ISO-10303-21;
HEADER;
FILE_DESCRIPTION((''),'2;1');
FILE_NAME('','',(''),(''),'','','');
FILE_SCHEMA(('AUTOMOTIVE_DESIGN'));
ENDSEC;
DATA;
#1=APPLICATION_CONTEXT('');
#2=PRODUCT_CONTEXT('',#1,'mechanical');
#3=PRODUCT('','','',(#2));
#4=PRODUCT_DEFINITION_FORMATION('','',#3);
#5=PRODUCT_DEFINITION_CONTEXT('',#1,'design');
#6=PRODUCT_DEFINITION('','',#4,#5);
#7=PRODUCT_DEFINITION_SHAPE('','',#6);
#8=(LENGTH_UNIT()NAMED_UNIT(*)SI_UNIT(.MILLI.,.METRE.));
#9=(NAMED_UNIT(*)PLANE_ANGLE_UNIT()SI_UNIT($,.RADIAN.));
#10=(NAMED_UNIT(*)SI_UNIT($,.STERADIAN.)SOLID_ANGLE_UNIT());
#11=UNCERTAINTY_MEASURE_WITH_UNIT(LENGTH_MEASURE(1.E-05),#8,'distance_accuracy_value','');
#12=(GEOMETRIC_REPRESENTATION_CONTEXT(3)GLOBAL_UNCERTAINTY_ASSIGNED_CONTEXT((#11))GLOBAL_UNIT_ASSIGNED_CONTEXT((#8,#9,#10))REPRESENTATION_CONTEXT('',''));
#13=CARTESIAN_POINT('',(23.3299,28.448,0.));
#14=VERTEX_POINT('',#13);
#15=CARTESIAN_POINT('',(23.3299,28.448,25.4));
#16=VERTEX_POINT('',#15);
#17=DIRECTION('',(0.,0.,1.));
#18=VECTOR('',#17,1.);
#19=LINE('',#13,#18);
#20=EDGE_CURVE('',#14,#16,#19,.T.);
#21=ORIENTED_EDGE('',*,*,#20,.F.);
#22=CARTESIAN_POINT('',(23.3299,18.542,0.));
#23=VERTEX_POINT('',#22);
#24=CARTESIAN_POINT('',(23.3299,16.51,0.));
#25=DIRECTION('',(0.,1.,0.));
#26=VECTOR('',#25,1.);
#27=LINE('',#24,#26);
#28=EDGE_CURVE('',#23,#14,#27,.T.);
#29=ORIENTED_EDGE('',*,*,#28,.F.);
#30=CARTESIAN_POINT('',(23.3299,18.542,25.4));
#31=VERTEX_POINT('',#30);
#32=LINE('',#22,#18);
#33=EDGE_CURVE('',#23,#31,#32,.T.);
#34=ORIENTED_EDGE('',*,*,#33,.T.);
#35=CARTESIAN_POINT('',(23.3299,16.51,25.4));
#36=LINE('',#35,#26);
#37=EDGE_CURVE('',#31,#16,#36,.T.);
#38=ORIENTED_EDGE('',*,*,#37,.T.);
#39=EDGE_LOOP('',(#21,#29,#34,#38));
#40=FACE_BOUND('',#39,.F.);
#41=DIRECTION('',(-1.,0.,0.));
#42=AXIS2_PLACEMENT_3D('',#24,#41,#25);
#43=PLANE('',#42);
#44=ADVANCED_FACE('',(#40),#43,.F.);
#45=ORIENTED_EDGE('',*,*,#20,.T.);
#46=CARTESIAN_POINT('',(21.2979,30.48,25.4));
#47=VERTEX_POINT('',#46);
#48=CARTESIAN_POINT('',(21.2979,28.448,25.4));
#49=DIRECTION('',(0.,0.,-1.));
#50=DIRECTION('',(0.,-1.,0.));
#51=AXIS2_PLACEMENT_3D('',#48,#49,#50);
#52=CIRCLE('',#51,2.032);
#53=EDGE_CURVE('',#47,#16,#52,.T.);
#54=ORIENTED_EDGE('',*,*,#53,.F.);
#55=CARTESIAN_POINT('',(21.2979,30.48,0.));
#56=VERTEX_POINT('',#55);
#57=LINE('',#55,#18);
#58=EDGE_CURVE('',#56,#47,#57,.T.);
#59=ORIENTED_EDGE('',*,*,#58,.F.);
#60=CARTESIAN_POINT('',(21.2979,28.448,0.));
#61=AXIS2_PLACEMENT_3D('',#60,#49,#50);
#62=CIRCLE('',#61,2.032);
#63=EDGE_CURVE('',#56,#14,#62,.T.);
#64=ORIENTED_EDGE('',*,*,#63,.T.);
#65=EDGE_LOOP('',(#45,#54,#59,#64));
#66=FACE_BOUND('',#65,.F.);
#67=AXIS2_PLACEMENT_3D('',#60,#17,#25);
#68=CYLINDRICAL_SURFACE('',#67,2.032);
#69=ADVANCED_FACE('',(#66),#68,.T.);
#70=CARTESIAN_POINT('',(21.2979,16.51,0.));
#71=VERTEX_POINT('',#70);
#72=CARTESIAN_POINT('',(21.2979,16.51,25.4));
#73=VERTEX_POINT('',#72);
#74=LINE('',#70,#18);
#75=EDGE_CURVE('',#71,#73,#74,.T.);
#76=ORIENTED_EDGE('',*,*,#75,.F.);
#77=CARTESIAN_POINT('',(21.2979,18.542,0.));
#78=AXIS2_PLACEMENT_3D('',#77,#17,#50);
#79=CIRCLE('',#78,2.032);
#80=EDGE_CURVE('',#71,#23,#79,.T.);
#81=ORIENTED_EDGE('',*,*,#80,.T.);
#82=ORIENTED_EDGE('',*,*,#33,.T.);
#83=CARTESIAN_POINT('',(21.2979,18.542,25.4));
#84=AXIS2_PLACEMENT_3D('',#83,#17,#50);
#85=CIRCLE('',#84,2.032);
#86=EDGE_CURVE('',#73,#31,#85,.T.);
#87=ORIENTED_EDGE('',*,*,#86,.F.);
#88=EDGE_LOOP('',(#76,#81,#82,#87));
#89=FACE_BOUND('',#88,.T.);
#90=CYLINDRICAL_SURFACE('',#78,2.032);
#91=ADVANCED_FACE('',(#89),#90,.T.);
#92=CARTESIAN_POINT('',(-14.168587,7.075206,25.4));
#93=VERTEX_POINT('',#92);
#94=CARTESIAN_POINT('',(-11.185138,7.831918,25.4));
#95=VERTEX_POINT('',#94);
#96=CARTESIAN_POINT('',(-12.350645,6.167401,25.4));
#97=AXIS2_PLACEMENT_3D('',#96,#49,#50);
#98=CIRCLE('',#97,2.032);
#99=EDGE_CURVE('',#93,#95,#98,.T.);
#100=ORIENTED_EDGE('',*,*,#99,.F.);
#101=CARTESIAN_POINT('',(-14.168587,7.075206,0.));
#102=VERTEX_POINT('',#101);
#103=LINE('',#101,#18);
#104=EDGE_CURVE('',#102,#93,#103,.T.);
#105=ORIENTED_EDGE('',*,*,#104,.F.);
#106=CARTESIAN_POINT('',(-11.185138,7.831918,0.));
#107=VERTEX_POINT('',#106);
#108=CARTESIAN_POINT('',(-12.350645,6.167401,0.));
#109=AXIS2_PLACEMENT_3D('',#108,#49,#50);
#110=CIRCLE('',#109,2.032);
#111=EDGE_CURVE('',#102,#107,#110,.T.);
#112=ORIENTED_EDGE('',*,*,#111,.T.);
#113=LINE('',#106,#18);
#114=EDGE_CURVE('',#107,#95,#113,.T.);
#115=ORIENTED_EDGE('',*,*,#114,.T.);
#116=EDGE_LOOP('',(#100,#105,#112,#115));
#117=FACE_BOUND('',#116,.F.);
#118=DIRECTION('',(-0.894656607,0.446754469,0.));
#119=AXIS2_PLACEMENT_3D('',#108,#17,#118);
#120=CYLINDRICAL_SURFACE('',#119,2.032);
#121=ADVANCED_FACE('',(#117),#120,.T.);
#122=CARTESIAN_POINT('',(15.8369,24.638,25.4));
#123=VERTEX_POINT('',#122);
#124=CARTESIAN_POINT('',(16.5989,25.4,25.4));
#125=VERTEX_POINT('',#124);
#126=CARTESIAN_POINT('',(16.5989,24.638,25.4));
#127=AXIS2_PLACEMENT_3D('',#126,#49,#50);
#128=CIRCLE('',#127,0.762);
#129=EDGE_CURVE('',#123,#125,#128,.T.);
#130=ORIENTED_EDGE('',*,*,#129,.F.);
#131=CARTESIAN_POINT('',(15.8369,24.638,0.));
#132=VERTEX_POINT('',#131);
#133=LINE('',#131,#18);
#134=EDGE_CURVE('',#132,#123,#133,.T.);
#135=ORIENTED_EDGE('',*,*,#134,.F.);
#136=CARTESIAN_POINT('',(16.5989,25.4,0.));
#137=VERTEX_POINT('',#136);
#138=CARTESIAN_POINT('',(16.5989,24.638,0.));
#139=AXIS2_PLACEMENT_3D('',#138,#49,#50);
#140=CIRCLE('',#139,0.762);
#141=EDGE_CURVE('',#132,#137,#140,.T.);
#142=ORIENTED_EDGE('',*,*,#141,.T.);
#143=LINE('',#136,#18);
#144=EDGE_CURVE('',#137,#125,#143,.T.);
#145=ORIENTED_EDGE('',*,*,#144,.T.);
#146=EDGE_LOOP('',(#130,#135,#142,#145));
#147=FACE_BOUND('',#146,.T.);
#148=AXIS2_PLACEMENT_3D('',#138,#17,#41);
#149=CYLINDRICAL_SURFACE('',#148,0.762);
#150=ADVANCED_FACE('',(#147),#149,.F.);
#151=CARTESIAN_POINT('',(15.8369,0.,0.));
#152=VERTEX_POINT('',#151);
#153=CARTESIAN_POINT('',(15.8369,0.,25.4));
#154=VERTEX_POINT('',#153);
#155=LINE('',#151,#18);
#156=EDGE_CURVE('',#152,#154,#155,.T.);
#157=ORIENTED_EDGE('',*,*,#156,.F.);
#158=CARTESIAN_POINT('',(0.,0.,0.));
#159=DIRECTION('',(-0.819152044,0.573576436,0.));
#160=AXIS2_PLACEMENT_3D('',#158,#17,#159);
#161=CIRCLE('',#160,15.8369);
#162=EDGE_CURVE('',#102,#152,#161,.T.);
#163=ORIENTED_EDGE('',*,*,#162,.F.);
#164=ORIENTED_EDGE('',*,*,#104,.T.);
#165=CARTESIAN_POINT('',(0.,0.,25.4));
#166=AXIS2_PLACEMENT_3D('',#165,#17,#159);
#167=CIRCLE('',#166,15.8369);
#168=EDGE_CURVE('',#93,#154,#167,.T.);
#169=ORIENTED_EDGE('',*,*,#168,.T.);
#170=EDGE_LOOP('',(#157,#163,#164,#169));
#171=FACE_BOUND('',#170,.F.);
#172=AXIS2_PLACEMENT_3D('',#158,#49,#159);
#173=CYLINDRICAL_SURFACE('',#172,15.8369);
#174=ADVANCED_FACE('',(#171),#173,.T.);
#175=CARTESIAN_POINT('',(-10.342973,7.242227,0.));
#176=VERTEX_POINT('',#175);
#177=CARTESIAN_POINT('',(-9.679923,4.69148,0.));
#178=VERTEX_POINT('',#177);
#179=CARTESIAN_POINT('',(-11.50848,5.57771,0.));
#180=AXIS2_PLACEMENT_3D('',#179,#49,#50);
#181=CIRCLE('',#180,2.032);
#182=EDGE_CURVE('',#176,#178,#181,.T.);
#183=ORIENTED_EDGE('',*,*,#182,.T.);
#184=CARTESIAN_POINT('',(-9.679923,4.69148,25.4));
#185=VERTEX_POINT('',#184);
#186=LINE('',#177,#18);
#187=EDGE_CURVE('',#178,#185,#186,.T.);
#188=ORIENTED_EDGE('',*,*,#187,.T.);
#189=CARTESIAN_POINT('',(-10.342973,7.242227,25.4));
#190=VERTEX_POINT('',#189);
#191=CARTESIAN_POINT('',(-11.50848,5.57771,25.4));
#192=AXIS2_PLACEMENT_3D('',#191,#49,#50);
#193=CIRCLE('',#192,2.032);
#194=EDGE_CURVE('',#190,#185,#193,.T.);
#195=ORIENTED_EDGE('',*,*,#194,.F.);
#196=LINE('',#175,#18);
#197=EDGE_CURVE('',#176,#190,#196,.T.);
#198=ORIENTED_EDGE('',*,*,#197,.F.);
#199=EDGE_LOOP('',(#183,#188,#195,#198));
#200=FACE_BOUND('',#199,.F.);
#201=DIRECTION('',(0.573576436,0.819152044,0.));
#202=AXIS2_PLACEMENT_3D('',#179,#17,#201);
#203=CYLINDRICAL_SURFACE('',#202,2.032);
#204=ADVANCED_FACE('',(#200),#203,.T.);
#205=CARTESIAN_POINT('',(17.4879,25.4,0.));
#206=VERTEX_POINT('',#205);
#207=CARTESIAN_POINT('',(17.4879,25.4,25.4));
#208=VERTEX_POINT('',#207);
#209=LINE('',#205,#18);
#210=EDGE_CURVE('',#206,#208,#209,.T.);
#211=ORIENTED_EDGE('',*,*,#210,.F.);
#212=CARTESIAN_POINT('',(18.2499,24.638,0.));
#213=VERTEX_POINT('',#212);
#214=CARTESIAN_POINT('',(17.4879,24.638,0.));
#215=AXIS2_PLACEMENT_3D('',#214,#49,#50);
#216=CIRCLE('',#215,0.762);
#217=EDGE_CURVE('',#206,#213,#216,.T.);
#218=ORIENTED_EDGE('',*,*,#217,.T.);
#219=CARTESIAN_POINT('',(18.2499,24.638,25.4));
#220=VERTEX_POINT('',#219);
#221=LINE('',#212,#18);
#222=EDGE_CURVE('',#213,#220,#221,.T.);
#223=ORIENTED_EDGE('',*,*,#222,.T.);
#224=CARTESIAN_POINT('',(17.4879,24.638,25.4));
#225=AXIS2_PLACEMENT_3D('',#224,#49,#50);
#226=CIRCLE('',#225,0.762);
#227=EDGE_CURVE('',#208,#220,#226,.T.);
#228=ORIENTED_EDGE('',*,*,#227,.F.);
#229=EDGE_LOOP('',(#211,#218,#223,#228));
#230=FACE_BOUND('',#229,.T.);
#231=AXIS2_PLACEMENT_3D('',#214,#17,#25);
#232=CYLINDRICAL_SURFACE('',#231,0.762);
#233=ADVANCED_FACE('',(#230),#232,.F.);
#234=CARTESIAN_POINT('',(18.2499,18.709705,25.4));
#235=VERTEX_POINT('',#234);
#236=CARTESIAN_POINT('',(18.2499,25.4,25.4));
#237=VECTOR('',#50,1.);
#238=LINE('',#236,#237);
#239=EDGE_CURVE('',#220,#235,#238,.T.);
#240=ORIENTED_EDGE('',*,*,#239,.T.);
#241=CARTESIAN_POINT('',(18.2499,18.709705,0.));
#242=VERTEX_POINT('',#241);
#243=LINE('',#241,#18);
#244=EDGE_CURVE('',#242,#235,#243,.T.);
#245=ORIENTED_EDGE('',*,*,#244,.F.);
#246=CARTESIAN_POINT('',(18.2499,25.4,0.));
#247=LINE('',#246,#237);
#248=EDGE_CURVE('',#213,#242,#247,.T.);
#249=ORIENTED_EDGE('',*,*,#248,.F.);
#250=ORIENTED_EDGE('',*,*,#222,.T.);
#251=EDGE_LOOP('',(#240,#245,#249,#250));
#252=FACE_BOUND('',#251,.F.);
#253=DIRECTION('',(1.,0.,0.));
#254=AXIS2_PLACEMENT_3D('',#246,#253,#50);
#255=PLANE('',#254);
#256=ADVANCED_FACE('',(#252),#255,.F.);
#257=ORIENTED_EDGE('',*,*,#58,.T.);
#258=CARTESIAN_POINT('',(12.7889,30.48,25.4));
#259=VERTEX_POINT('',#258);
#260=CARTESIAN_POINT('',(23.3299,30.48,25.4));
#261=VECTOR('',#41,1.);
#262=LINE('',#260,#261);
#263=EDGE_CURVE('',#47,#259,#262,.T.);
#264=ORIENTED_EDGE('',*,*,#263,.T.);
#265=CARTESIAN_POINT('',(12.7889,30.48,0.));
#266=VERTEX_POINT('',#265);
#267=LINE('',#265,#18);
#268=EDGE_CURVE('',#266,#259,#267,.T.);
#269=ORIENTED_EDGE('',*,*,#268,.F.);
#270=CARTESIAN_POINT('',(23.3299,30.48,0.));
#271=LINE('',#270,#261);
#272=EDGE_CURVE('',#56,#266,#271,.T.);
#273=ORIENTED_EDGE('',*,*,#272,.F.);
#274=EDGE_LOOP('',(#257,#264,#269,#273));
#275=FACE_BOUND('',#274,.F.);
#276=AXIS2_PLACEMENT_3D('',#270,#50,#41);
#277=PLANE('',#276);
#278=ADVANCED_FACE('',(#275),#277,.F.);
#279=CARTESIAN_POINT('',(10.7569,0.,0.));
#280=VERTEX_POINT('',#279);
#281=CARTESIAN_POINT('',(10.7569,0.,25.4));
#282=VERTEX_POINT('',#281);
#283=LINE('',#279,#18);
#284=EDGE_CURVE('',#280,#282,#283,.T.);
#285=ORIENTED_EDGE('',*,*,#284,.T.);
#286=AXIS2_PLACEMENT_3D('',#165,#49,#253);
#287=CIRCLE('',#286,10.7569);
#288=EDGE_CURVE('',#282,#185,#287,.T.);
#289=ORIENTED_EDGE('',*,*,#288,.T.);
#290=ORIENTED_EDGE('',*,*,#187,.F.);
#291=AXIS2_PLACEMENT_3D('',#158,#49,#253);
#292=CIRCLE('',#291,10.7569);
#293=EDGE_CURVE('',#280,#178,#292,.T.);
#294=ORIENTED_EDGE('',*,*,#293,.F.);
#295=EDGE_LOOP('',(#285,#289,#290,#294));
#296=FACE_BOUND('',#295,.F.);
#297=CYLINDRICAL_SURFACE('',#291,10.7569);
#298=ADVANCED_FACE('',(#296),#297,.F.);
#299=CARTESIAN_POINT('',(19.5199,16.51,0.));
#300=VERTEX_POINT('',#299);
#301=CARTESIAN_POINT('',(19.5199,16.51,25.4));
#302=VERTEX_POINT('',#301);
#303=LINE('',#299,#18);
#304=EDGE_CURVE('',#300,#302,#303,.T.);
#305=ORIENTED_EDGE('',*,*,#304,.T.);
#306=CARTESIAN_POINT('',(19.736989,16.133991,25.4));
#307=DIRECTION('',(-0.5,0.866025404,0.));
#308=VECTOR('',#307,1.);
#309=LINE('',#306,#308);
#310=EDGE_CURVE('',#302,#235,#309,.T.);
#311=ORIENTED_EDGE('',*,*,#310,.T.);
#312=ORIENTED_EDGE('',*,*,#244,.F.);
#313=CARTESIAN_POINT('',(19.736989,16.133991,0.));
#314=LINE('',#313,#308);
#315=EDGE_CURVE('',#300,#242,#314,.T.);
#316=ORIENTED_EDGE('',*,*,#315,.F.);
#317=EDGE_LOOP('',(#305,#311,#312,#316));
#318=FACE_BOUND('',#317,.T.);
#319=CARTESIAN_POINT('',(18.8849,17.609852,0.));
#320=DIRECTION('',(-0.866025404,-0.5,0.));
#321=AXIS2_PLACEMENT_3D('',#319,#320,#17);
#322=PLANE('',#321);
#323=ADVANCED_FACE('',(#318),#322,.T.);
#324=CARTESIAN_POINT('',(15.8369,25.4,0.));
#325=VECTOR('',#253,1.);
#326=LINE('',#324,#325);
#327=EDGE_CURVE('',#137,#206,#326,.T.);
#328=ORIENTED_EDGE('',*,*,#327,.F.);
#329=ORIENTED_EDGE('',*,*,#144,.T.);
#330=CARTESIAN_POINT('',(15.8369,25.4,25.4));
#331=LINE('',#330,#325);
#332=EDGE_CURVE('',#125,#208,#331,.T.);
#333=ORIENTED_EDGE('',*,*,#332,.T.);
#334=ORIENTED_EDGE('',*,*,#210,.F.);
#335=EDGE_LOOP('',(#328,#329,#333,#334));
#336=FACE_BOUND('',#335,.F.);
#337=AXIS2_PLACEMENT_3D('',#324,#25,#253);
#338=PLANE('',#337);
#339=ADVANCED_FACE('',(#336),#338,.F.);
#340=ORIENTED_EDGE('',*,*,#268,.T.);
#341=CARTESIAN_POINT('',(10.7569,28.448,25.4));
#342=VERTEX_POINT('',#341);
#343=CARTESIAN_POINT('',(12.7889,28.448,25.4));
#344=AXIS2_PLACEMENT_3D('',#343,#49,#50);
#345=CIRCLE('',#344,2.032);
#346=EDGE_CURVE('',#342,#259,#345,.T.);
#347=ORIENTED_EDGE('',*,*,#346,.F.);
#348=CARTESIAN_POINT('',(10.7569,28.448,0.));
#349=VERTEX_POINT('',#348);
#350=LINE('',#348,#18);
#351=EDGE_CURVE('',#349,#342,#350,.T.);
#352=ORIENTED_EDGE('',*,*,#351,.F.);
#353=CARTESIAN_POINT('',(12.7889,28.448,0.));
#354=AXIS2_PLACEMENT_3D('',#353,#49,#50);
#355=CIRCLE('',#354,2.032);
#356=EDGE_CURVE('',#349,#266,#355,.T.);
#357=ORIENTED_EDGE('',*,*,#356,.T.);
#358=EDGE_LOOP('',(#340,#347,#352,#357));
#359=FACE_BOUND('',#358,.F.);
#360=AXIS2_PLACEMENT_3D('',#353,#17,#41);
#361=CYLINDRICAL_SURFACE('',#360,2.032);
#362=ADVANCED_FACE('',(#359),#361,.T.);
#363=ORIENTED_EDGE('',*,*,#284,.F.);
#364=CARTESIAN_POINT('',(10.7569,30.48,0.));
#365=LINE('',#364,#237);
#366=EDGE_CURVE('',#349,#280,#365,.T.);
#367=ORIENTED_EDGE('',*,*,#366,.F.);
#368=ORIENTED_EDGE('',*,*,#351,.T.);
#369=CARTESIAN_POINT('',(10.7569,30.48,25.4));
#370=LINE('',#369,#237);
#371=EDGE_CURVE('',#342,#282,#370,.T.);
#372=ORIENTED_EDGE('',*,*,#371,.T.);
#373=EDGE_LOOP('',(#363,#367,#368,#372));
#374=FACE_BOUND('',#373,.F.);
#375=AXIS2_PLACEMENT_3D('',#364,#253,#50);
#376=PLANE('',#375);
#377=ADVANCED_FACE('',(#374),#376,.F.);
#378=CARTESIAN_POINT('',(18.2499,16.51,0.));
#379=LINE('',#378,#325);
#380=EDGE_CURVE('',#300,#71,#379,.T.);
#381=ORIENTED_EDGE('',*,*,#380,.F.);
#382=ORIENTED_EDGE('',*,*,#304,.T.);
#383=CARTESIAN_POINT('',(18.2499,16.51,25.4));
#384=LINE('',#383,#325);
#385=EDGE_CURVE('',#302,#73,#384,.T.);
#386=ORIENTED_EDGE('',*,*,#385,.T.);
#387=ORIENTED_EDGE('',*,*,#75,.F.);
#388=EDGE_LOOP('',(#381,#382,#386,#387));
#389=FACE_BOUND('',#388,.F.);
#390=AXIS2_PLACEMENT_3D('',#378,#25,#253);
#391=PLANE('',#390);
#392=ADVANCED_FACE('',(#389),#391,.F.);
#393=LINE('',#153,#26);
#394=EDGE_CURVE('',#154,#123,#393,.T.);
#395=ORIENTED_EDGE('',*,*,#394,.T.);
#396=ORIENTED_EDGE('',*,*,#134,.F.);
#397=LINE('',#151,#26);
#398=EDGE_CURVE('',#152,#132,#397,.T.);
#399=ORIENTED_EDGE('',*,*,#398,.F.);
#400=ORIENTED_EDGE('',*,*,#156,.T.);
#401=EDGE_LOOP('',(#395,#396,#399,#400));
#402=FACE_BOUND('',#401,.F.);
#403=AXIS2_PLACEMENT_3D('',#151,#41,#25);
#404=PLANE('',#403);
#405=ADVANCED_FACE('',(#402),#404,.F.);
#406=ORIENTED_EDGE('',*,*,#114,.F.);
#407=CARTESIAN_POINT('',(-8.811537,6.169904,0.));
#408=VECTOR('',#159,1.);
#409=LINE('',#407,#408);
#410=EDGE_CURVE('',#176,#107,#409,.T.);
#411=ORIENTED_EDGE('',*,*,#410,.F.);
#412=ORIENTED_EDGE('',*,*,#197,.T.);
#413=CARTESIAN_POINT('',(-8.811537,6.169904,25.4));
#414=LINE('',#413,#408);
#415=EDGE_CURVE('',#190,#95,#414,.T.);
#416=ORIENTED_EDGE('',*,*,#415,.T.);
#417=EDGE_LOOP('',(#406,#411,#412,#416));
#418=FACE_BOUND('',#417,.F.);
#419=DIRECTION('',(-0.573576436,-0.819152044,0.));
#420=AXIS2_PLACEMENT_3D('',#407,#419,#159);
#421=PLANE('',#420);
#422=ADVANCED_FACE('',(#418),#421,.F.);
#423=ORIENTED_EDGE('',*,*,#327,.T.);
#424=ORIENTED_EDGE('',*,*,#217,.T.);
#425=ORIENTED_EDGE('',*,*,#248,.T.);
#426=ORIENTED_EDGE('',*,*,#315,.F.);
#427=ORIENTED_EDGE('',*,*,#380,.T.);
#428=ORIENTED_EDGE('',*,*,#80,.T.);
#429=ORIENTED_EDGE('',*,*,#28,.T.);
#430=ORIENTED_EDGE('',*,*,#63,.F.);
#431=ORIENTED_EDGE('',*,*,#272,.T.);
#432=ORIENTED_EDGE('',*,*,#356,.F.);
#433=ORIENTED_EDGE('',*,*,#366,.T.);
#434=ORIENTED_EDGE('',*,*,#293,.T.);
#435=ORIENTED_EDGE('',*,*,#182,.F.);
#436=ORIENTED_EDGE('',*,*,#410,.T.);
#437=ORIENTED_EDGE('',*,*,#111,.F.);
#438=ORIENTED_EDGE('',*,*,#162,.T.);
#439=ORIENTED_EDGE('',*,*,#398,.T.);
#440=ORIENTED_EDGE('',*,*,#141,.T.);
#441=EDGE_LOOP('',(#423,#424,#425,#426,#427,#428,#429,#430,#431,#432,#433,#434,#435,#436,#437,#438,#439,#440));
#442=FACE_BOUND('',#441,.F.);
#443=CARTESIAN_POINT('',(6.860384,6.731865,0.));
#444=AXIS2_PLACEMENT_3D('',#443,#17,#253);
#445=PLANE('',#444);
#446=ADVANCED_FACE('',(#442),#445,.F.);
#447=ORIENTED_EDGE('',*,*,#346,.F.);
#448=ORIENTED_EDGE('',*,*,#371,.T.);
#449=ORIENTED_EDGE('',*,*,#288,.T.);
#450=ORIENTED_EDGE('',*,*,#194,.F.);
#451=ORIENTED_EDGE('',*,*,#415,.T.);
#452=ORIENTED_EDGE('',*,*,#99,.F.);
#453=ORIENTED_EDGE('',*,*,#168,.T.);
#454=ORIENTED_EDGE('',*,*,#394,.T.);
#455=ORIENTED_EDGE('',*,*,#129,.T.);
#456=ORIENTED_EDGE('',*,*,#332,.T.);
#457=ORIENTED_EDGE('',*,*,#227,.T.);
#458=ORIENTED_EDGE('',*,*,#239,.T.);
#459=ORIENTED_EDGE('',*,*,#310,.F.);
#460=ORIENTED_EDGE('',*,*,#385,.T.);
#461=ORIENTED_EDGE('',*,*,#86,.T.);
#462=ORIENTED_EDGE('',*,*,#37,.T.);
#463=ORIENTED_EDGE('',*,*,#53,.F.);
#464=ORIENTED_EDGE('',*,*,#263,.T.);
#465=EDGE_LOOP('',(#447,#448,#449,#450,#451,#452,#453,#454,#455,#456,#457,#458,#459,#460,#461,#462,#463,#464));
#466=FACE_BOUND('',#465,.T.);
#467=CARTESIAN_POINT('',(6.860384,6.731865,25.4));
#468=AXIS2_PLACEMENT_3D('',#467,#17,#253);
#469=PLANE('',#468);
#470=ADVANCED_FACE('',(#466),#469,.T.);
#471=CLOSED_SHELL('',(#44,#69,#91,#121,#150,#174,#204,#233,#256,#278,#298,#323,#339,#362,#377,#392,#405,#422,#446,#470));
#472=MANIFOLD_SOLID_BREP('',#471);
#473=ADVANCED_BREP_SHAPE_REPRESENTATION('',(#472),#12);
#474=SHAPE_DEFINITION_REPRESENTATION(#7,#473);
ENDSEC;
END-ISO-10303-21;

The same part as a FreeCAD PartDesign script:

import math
import FreeCAD as App
import Part
import Sketcher
Q = App.Units.Quantity


def edges_at(feature, points):
    """Names of the edges that pass closest to the given points."""
    edges = feature.Shape.Edges
    near = lambda p: min(range(len(edges)), key=lambda i: edges[i].distToShape(Part.Vertex(*p))[0])
    return sorted({f"Edge{near(p) + 1}" for p in points})

doc = App.newDocument("Part")
body = doc.addObject("PartDesign::Body", "Body")

# Sketch on XY plane
sketch1 = body.newObject("Sketcher::SketchObject", "Sketch")
sketch1.AttachmentSupport = (doc.getObject("XY_Plane"), [""])
sketch1.MapMode = "FlatFace"
sketch1.addGeometry([
    Part.ArcOfCircle(Part.Circle(App.Vector(0, 0, 0), App.Vector(0, 0, 1), 10.7569), math.radians(145), math.radians(360)),  # 0
    Part.LineSegment(App.Vector(-8.811537, 6.169904, 0), App.Vector(-12.972829, 9.083673, 0)),  # 1
    Part.ArcOfCircle(Part.Circle(App.Vector(0, 0, 0), App.Vector(0, 0, 1), 15.8369), math.radians(145), math.radians(360)),  # 2
    Part.LineSegment(App.Vector(15.8369, 0, 0), App.Vector(15.8369, 25.4, 0)),  # 3
    Part.LineSegment(App.Vector(15.8369, 25.4, 0), App.Vector(18.2499, 25.4, 0)),  # 4
    Part.LineSegment(App.Vector(18.2499, 25.4, 0), App.Vector(18.2499, 16.51, 0)),  # 5
    Part.LineSegment(App.Vector(18.2499, 16.51, 0), App.Vector(23.3299, 16.51, 0)),  # 6
    Part.LineSegment(App.Vector(23.3299, 16.51, 0), App.Vector(23.3299, 30.48, 0)),  # 7
    Part.LineSegment(App.Vector(23.3299, 30.48, 0), App.Vector(10.7569, 30.48, 0)),  # 8
    Part.LineSegment(App.Vector(10.7569, 30.48, 0), App.Vector(10.7569, 0, 0)),  # 9
], False)
sketch1.addConstraint([
    Sketcher.Constraint("Coincident", 0, 1, 1, 1),
    Sketcher.Constraint("Coincident", 1, 2, 2, 1),
    Sketcher.Constraint("Tangent", 2, 2, 3, 1),
    Sketcher.Constraint("Coincident", 3, 2, 4, 1),
    Sketcher.Constraint("Coincident", 4, 2, 5, 1),
    Sketcher.Constraint("Coincident", 5, 2, 6, 1),
    Sketcher.Constraint("Coincident", 6, 2, 7, 1),
    Sketcher.Constraint("Coincident", 7, 2, 8, 1),
    Sketcher.Constraint("Coincident", 8, 2, 9, 1),
    Sketcher.Constraint("Tangent", 9, 2, 0, 2),
    Sketcher.Constraint("Vertical", 3),
    Sketcher.Constraint("Horizontal", 4),
    Sketcher.Constraint("Vertical", 5),
    Sketcher.Constraint("Horizontal", 6),
    Sketcher.Constraint("Vertical", 7),
    Sketcher.Constraint("Horizontal", 8),
    Sketcher.Constraint("Vertical", 9),
    Sketcher.Constraint("Coincident", 0, 3, -1, 1),
    Sketcher.Constraint("Coincident", 2, 3, -1, 1),
    Sketcher.Constraint("DistanceY", 3, 1, 3, 2, Q("1 in")),
    Sketcher.Constraint("DistanceX", 6, 1, 6, 2, Q("0.2 in")),
    Sketcher.Constraint("DistanceY", 9, 2, 9, 1, Q("1.2 in")),
    Sketcher.Constraint("Angle", 1, Q("145 deg")),
    Sketcher.Constraint("Distance", 1, Q("0.2 in")),
    Sketcher.Constraint("DistanceY", 5, 2, 5, 1, Q("0.35 in")),
    Sketcher.Constraint("Radius", 0, Q("0.4235 in")),
    Sketcher.Constraint("DistanceX", 4, 1, 4, 2, Q("0.095 in")),
    Sketcher.Constraint("DistanceX", 1, 2, -1, 1, 12.972829),
])
pad1 = body.newObject("PartDesign::Pad", "Pad")
pad1.Profile = sketch1
pad1.Length = Q("1 in")
doc.recompute()

fillet = body.newObject("PartDesign::Fillet", "Fillet")
fillet.Base = (pad1, edges_at(pad1, [(15.837, 25.4, 12.7), (18.25, 25.4, 12.7)]))
fillet.Radius = Q("0.03 in")
doc.recompute()

fillet2 = body.newObject("PartDesign::Fillet", "Fillet001")
fillet2.Base = (fillet, edges_at(fillet, [
    (23.33, 16.51, 12.7),
    (23.33, 30.48, 12.7),
    (10.757, 30.48, 12.7),
    (-8.812, 6.17, 12.7),
    (-12.973, 9.084, 12.7),
]))
fillet2.Radius = Q("0.08 in")
doc.recompute()

chamfer = body.newObject("PartDesign::Chamfer", "Chamfer")
chamfer.Base = (fillet2, edges_at(fillet2, [(18.25, 16.51, 12.7)]))
chamfer.ChamferType = "Two distances"
chamfer.Size = Q("0.05 in")
chamfer.Size2 = 2.199705

doc.recompute()
